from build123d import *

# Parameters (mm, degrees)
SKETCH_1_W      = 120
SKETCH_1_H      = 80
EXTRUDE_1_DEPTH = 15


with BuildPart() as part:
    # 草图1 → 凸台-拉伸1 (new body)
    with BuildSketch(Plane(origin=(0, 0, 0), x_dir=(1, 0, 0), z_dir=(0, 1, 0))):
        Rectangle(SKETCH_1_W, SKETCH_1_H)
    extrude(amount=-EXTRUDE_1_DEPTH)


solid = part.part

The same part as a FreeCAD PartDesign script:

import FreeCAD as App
import Part
import Sketcher
from FreeCAD import Vector
Q = App.Units.Quantity


def add_polygon(sketch, points):
    """Adds a closed chain of lines whose ends are joined by coincident constraints."""
    first, n = sketch.GeometryCount, len(points)
    for a, b in zip(points, points[1:] + points[:1]):
        sketch.addGeometry(Part.LineSegment(App.Vector(*a, 0), App.Vector(*b, 0)), False)
    for i in range(n):
        sketch.addConstraint(Sketcher.Constraint("Coincident", first + i, 2, first + (i + 1) % n, 1))

doc = App.newDocument("Part")
body = doc.addObject("PartDesign::Body", "Body")

sketch1 = doc.addObject("Sketcher::SketchObject", "Sketch")
body.addObject(sketch1)
sketch1.AttachmentSupport = (doc.XZ_Plane, [""])
sketch1.MapMode = "FlatFace"
add_polygon(sketch1, [(-60, -40), (-60, 40), (60, 40), (60, -40)])
sketch1.addConstraint([
    Sketcher.Constraint("Vertical", 0),
    Sketcher.Constraint("Horizontal", 1),
    Sketcher.Constraint("Vertical", 2),
    Sketcher.Constraint("Horizontal", 3),
    Sketcher.Constraint("Symmetric", 0, 2, 2, 2, -1, 1),
    Sketcher.Constraint("DistanceX", 1, 1, 1, 2, Q("120 mm")),
    Sketcher.Constraint("DistanceY", 0, 1, 0, 2, Q("80 mm")),
])
pad1 = doc.addObject("PartDesign::Pad", "Pad")
body.addObject(pad1)
pad1.Profile = sketch1
pad1.Length = 15

doc.recompute()
